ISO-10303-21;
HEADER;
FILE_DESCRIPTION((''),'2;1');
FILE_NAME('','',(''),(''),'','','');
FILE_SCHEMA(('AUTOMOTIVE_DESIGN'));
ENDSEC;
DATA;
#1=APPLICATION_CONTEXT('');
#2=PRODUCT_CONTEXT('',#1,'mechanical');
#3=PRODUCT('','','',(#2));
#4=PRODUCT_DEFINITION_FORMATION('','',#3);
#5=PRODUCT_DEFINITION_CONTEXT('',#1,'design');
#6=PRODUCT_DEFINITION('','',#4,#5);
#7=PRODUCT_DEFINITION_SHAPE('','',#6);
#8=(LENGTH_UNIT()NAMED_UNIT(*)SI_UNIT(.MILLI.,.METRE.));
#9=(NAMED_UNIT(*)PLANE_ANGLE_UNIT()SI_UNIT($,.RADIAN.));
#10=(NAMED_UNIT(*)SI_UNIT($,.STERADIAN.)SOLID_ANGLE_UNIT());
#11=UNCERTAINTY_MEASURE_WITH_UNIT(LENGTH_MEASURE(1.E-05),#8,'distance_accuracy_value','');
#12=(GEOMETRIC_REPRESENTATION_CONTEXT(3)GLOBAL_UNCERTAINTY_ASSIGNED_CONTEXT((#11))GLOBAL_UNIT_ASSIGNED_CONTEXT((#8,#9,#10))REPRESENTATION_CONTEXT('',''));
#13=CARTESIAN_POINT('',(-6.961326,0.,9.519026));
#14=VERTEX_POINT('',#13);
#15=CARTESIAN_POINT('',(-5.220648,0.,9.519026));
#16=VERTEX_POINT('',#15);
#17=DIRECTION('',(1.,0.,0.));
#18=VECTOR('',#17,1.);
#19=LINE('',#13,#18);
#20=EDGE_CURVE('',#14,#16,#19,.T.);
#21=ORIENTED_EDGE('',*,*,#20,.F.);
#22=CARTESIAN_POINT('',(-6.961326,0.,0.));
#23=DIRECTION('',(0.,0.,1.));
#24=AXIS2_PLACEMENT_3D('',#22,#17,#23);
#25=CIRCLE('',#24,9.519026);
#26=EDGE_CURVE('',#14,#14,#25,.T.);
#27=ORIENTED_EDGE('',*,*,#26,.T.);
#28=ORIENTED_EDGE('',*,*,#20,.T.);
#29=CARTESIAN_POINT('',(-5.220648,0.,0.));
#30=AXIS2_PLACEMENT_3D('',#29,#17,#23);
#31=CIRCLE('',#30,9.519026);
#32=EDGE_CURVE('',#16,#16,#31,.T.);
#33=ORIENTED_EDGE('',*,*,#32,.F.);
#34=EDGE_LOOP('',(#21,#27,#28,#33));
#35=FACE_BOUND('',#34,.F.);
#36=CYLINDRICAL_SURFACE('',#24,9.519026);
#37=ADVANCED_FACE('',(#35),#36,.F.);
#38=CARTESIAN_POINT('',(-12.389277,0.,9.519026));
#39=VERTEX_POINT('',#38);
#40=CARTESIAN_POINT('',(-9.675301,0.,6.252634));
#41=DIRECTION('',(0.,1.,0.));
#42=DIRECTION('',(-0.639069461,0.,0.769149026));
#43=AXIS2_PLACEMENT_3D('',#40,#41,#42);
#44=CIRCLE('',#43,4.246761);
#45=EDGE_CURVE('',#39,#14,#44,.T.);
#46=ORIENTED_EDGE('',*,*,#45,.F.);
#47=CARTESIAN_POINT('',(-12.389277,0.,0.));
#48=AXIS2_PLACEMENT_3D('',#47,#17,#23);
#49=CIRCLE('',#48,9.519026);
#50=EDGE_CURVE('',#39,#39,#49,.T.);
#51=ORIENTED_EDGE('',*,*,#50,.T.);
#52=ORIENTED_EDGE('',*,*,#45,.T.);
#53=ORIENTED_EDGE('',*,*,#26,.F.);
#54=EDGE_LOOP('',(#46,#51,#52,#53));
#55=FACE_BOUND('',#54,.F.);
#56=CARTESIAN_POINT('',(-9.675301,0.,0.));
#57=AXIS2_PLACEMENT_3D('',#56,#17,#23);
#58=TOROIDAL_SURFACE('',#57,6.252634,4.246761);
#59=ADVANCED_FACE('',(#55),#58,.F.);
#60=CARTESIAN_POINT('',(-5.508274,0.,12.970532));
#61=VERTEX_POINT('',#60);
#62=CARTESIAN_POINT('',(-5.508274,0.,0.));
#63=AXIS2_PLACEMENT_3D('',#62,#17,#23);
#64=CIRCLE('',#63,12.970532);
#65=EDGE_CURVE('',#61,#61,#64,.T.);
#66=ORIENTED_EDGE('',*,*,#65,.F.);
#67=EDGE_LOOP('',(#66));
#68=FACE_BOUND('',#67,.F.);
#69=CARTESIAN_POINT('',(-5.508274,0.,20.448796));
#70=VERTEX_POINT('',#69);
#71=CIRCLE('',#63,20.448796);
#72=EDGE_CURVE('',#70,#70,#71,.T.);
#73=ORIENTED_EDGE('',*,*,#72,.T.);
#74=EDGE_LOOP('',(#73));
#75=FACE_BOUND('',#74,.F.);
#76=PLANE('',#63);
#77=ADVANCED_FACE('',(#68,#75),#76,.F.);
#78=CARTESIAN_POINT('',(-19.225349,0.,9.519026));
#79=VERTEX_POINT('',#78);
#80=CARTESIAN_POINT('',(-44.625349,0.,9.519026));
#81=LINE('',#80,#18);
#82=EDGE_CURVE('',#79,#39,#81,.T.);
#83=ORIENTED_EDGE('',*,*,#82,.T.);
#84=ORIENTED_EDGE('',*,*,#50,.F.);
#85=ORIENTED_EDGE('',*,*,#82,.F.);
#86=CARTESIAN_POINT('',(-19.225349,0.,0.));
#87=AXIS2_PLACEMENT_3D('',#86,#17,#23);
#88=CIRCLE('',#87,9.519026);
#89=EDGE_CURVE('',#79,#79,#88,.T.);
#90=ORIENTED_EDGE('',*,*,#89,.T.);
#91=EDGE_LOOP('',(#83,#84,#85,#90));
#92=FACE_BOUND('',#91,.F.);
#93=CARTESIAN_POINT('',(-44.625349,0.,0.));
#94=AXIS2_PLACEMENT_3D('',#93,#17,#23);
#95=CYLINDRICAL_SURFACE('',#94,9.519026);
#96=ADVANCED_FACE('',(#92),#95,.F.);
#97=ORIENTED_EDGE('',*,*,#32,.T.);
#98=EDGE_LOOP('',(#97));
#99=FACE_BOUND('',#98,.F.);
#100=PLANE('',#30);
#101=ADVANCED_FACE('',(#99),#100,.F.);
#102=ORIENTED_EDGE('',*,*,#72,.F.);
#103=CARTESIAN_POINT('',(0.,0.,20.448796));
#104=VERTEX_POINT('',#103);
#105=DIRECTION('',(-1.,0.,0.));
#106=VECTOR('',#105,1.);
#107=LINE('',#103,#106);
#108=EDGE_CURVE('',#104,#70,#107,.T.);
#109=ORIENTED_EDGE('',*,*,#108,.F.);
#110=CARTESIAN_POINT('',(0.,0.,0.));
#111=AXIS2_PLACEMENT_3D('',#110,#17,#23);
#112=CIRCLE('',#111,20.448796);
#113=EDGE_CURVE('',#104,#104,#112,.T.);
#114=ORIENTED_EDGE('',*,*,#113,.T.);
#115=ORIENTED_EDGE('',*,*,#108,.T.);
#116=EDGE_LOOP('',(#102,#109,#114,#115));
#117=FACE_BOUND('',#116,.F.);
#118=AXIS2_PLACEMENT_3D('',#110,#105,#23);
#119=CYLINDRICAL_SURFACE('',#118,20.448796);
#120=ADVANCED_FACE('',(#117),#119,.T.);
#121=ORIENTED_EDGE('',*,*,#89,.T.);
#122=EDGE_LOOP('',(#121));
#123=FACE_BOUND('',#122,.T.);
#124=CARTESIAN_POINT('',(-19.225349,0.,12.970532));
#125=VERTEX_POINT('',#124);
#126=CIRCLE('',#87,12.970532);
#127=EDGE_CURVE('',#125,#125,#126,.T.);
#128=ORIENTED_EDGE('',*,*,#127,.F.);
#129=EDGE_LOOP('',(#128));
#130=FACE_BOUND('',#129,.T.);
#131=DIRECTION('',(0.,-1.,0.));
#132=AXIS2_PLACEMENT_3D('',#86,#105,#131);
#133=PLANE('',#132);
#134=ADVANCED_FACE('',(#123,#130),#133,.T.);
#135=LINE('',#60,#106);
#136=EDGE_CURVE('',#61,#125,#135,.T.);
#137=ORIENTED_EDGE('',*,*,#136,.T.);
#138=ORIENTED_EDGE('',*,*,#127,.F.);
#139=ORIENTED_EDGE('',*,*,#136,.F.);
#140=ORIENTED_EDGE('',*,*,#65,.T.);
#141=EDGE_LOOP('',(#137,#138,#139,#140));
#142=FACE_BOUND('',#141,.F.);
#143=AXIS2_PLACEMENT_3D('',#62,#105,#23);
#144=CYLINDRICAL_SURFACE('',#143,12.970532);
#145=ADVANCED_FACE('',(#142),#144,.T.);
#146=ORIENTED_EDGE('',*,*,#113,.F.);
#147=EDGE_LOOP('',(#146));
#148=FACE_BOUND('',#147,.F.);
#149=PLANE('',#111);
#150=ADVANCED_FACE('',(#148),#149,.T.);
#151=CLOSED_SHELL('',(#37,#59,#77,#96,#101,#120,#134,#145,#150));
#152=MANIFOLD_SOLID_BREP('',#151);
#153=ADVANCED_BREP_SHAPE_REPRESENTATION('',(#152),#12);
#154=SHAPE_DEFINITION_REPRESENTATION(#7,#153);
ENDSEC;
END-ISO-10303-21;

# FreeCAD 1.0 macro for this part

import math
import FreeCAD as App
import Part
import Sketcher
from FreeCAD import Vector
Q = App.Units.Quantity

doc = App.newDocument("Part")
params = doc.addObject("Spreadsheet::Sheet", "Params")
for row, (alias, value) in enumerate([
    ("revolution_angle", "360 deg"),
    ("pocket1_length", "1 in"),
], start=1):
    params.set(f"A{row}", alias)
    params.set(f"B{row}", "=" + value)
    params.setAlias(f"B{row}", alias)

body = doc.addObject("PartDesign::Body", "Body")

# Sketch on XZ plane
sketch1 = body.newObject("Sketcher::SketchObject", "Sketch")
sketch1.AttachmentSupport = (doc.getObject("XZ_Plane"), [""])
sketch1.MapMode = "FlatFace"
sketch1.addGeometry([
    Part.LineSegment(Vector(-44.6, 13, 0), Vector(-44.6, 9.5, 0)),  # 0
    Part.LineSegment(Vector(-44.6, 9.5, 0), Vector(-12.4, 9.5, 0)),  # 1
    Part.ArcOfCircle(Part.Circle(Vector(-9.7, 6.3, 0), Vector(0, 0, 1), 4.2), math.radians(50), math.radians(130)),  # 2
    Part.LineSegment(Vector(-7, 9.5, 0), Vector(-5.2, 9.5, 0)),  # 3
    Part.LineSegment(Vector(-5.2, 9.5, 0), Vector(-5.2, 0, 0)),  # 4
    Part.LineSegment(Vector(-5.2, 0, 0), Vector(0, 0, 0)),  # 5
    Part.LineSegment(Vector(0, 0, 0), Vector(0, 20.4, 0)),  # 6
    Part.LineSegment(Vector(0, 20.4, 0), Vector(-5.5, 20.4, 0)),  # 7
    Part.LineSegment(Vector(-5.5, 20.4, 0), Vector(-5.5, 13, 0)),  # 8
    Part.LineSegment(Vector(-5.5, 13, 0), Vector(-44.6, 13, 0)),  # 9
], False)
sketch1.addConstraint([
    Sketcher.Constraint("Coincident", 0, 2, 1, 1),
    Sketcher.Constraint("Coincident", 1, 2, 2, 2),
    Sketcher.Constraint("Coincident", 2, 1, 3, 1),
    Sketcher.Constraint("Coincident", 3, 2, 4, 1),
    Sketcher.Constraint("Coincident", 4, 2, 5, 1),
    Sketcher.Constraint("Coincident", 5, 2, 6, 1),
    Sketcher.Constraint("Coincident", 6, 2, 7, 1),
    Sketcher.Constraint("Coincident", 7, 2, 8, 1),
    Sketcher.Constraint("Coincident", 8, 2, 9, 1),
    Sketcher.Constraint("Coincident", 9, 2, 0, 1),
    Sketcher.Constraint("Vertical", 0),
    Sketcher.Constraint("Horizontal", 1),
    Sketcher.Constraint("Horizontal", 3),
    Sketcher.Constraint("Vertical", 4),
    Sketcher.Constraint("Horizontal", 5),
    Sketcher.Constraint("Vertical", 6),
    Sketcher.Constraint("Horizontal", 7),
    Sketcher.Constraint("Vertical", 8),
    Sketcher.Constraint("Horizontal", 9),
    Sketcher.Constraint("Coincident", 5, 2, -1, 1),
    Sketcher.Constraint("Horizontal", 1, 2, 2, 1),
    Sketcher.Constraint("Radius", 2, Q("4.246761 mm")),
    Sketcher.Constraint("DistanceX", 2, 3, -1, 1, Q("9.675301 mm")),
    Sketcher.Constraint("DistanceX", 0, 2, 3, 2, Q("39.404701 mm")),
    Sketcher.Constraint("DistanceY", 2, 3, 8, 2, Q("6.717898 mm")),
    Sketcher.Constraint("DistanceX", 1, 1, 1, 2, Q("32.236072 mm")),
    Sketcher.Constraint("DistanceX", 3, 1, 3, 2, Q("1.740678 mm")),
    Sketcher.Constraint("DistanceX", 7, 2, 7, 1, Q("5.508274 mm")),
    Sketcher.Constraint("DistanceY", 4, 2, 4, 1, Q("9.519026 mm")),
    Sketcher.Constraint("DistanceY", 6, 1, 6, 2, Q("20.448796 mm")),
])
revolution = body.newObject("PartDesign::Revolution", "Revolution")
revolution.Profile = sketch1
revolution.ReferenceAxis = (sketch1, ["H_Axis"])
revolution.setExpression("Angle", "Params.revolution_angle")

# Sketch on YZ plane
sketch2 = body.newObject("Sketcher::SketchObject", "Sketch001")
sketch2.AttachmentSupport = (doc.getObject("YZ_Plane"), [""])
sketch2.MapMode = "FlatFace"
sketch2.AttachmentOffset = App.Placement(Vector(0, 0, -44.625349), App.Rotation())
sketch2.addGeometry([
    Part.Circle(Vector(0, 0, 0), Vector(0, 0, 1), 13),
    Part.Circle(Vector(0, 0, 0), Vector(0, 0, 1), 10),
], False)
sketch2.addConstraint([
    Sketcher.Constraint("Coincident", 0, 3, -1, 1),
    Sketcher.Constraint("Coincident", 1, 3, -1, 1),
    Sketcher.Constraint("Diameter", 0, Q("25.941064 mm")),
    Sketcher.Constraint("Diameter", 1, Q("19.038052 mm")),
])
pocket1 = body.newObject("PartDesign::Pocket", "Pocket")
pocket1.Profile = sketch2
pocket1.setExpression("Length", "Params.pocket1_length")
pocket1.Reversed = True

doc.recompute()
